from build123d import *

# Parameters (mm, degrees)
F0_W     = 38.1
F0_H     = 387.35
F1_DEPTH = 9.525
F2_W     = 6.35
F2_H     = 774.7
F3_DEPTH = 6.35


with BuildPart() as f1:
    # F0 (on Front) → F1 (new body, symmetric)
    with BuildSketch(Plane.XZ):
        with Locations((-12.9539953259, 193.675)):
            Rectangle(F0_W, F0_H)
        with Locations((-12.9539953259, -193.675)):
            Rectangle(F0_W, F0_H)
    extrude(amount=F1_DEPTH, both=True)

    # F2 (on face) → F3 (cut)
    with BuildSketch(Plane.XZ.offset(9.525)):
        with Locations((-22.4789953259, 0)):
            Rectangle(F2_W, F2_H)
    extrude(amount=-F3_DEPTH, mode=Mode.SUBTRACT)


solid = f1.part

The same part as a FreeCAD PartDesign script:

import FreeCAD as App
import Part
import Sketcher

V = App.Vector
Q = App.Units.Quantity

doc = App.newDocument("Part")
body = doc.addObject("PartDesign::Body", "Body")

# Sketch on XZ plane
sketch1 = body.newObject("Sketcher::SketchObject", "Sketch")
sketch1.AttachmentSupport = (doc.getObject("XZ_Plane"), [""])
sketch1.MapMode = "FlatFace"
sketch1.addGeometry([
    Part.LineSegment(V(-32.003995, 387.35, 0), V(-32.003995, -387.35, 0)),
    Part.LineSegment(V(-32.003995, -387.35, 0), V(6.096005, -387.35, 0)),
    Part.LineSegment(V(6.096005, -387.35, 0), V(6.096005, 387.35, 0)),
    Part.LineSegment(V(6.096005, 387.35, 0), V(-32.003995, 387.35, 0)),
], False)
sketch1.addConstraint([
    Sketcher.Constraint("Coincident", 0, 2, 1, 1),
    Sketcher.Constraint("Coincident", 1, 2, 2, 1),
    Sketcher.Constraint("Coincident", 2, 2, 3, 1),
    Sketcher.Constraint("Coincident", 3, 2, 0, 1),
    Sketcher.Constraint("Vertical", 0),
    Sketcher.Constraint("Horizontal", 1),
    Sketcher.Constraint("Vertical", 2),
    Sketcher.Constraint("Horizontal", 3),
    Sketcher.Constraint("DistanceX", 1, 1, 1, 2, Q("1.5 in")),
    Sketcher.Constraint("DistanceY", 0, 2, 0, 1, Q("30.5 in")),
    Sketcher.Constraint("DistanceX", 0, 2, -1, 1, Q("1.2599998 in")),
    Sketcher.Constraint("DistanceY", 0, 2, -1, 1, Q("15.25 in")),
])
pad1 = body.newObject("PartDesign::Pad", "Pad")
pad1.Profile = sketch1
pad1.Length = Q("0.75 in")
pad1.Midplane = True

# Sketch on XZ plane
sketch2 = body.newObject("Sketcher::SketchObject", "Sketch001")
sketch2.AttachmentSupport = (doc.getObject("XZ_Plane"), [""])
sketch2.MapMode = "FlatFace"
sketch2.AttachmentOffset = App.Placement(V(0, 0, 0.375 * 25.4), App.Rotation())
sketch2.addGeometry([
    Part.LineSegment(V(-25.653995, 387.35, 0), V(-25.653995, -387.35, 0)),
    Part.LineSegment(V(-25.653995, -387.35, 0), V(-19.303995, -387.35, 0)),
    Part.LineSegment(V(-19.303995, -387.35, 0), V(-19.303995, 387.35, 0)),
    Part.LineSegment(V(-19.303995, 387.35, 0), V(-25.653995, 387.35, 0)),
], False)
sketch2.addConstraint([
    Sketcher.Constraint("Coincident", 0, 2, 1, 1),
    Sketcher.Constraint("Coincident", 1, 2, 2, 1),
    Sketcher.Constraint("Coincident", 2, 2, 3, 1),
    Sketcher.Constraint("Coincident", 3, 2, 0, 1),
    Sketcher.Constraint("Vertical", 0),
    Sketcher.Constraint("Horizontal", 1),
    Sketcher.Constraint("Vertical", 2),
    Sketcher.Constraint("Horizontal", 3),
    Sketcher.Constraint("DistanceY", 0, 2, 0, 1, Q("30.5 in")),
    Sketcher.Constraint("DistanceX", 1, 1, 1, 2, Q("0.25 in")),
    Sketcher.Constraint("DistanceX", 0, 2, -1, 1, Q("1.0099998 in")),
    Sketcher.Constraint("DistanceY", 0, 2, -1, 1, Q("15.25 in")),
])
pocket1 = body.newObject("PartDesign::Pocket", "Pocket")
pocket1.Profile = sketch2
pocket1.Length = Q("0.25 in")

doc.recompute()
